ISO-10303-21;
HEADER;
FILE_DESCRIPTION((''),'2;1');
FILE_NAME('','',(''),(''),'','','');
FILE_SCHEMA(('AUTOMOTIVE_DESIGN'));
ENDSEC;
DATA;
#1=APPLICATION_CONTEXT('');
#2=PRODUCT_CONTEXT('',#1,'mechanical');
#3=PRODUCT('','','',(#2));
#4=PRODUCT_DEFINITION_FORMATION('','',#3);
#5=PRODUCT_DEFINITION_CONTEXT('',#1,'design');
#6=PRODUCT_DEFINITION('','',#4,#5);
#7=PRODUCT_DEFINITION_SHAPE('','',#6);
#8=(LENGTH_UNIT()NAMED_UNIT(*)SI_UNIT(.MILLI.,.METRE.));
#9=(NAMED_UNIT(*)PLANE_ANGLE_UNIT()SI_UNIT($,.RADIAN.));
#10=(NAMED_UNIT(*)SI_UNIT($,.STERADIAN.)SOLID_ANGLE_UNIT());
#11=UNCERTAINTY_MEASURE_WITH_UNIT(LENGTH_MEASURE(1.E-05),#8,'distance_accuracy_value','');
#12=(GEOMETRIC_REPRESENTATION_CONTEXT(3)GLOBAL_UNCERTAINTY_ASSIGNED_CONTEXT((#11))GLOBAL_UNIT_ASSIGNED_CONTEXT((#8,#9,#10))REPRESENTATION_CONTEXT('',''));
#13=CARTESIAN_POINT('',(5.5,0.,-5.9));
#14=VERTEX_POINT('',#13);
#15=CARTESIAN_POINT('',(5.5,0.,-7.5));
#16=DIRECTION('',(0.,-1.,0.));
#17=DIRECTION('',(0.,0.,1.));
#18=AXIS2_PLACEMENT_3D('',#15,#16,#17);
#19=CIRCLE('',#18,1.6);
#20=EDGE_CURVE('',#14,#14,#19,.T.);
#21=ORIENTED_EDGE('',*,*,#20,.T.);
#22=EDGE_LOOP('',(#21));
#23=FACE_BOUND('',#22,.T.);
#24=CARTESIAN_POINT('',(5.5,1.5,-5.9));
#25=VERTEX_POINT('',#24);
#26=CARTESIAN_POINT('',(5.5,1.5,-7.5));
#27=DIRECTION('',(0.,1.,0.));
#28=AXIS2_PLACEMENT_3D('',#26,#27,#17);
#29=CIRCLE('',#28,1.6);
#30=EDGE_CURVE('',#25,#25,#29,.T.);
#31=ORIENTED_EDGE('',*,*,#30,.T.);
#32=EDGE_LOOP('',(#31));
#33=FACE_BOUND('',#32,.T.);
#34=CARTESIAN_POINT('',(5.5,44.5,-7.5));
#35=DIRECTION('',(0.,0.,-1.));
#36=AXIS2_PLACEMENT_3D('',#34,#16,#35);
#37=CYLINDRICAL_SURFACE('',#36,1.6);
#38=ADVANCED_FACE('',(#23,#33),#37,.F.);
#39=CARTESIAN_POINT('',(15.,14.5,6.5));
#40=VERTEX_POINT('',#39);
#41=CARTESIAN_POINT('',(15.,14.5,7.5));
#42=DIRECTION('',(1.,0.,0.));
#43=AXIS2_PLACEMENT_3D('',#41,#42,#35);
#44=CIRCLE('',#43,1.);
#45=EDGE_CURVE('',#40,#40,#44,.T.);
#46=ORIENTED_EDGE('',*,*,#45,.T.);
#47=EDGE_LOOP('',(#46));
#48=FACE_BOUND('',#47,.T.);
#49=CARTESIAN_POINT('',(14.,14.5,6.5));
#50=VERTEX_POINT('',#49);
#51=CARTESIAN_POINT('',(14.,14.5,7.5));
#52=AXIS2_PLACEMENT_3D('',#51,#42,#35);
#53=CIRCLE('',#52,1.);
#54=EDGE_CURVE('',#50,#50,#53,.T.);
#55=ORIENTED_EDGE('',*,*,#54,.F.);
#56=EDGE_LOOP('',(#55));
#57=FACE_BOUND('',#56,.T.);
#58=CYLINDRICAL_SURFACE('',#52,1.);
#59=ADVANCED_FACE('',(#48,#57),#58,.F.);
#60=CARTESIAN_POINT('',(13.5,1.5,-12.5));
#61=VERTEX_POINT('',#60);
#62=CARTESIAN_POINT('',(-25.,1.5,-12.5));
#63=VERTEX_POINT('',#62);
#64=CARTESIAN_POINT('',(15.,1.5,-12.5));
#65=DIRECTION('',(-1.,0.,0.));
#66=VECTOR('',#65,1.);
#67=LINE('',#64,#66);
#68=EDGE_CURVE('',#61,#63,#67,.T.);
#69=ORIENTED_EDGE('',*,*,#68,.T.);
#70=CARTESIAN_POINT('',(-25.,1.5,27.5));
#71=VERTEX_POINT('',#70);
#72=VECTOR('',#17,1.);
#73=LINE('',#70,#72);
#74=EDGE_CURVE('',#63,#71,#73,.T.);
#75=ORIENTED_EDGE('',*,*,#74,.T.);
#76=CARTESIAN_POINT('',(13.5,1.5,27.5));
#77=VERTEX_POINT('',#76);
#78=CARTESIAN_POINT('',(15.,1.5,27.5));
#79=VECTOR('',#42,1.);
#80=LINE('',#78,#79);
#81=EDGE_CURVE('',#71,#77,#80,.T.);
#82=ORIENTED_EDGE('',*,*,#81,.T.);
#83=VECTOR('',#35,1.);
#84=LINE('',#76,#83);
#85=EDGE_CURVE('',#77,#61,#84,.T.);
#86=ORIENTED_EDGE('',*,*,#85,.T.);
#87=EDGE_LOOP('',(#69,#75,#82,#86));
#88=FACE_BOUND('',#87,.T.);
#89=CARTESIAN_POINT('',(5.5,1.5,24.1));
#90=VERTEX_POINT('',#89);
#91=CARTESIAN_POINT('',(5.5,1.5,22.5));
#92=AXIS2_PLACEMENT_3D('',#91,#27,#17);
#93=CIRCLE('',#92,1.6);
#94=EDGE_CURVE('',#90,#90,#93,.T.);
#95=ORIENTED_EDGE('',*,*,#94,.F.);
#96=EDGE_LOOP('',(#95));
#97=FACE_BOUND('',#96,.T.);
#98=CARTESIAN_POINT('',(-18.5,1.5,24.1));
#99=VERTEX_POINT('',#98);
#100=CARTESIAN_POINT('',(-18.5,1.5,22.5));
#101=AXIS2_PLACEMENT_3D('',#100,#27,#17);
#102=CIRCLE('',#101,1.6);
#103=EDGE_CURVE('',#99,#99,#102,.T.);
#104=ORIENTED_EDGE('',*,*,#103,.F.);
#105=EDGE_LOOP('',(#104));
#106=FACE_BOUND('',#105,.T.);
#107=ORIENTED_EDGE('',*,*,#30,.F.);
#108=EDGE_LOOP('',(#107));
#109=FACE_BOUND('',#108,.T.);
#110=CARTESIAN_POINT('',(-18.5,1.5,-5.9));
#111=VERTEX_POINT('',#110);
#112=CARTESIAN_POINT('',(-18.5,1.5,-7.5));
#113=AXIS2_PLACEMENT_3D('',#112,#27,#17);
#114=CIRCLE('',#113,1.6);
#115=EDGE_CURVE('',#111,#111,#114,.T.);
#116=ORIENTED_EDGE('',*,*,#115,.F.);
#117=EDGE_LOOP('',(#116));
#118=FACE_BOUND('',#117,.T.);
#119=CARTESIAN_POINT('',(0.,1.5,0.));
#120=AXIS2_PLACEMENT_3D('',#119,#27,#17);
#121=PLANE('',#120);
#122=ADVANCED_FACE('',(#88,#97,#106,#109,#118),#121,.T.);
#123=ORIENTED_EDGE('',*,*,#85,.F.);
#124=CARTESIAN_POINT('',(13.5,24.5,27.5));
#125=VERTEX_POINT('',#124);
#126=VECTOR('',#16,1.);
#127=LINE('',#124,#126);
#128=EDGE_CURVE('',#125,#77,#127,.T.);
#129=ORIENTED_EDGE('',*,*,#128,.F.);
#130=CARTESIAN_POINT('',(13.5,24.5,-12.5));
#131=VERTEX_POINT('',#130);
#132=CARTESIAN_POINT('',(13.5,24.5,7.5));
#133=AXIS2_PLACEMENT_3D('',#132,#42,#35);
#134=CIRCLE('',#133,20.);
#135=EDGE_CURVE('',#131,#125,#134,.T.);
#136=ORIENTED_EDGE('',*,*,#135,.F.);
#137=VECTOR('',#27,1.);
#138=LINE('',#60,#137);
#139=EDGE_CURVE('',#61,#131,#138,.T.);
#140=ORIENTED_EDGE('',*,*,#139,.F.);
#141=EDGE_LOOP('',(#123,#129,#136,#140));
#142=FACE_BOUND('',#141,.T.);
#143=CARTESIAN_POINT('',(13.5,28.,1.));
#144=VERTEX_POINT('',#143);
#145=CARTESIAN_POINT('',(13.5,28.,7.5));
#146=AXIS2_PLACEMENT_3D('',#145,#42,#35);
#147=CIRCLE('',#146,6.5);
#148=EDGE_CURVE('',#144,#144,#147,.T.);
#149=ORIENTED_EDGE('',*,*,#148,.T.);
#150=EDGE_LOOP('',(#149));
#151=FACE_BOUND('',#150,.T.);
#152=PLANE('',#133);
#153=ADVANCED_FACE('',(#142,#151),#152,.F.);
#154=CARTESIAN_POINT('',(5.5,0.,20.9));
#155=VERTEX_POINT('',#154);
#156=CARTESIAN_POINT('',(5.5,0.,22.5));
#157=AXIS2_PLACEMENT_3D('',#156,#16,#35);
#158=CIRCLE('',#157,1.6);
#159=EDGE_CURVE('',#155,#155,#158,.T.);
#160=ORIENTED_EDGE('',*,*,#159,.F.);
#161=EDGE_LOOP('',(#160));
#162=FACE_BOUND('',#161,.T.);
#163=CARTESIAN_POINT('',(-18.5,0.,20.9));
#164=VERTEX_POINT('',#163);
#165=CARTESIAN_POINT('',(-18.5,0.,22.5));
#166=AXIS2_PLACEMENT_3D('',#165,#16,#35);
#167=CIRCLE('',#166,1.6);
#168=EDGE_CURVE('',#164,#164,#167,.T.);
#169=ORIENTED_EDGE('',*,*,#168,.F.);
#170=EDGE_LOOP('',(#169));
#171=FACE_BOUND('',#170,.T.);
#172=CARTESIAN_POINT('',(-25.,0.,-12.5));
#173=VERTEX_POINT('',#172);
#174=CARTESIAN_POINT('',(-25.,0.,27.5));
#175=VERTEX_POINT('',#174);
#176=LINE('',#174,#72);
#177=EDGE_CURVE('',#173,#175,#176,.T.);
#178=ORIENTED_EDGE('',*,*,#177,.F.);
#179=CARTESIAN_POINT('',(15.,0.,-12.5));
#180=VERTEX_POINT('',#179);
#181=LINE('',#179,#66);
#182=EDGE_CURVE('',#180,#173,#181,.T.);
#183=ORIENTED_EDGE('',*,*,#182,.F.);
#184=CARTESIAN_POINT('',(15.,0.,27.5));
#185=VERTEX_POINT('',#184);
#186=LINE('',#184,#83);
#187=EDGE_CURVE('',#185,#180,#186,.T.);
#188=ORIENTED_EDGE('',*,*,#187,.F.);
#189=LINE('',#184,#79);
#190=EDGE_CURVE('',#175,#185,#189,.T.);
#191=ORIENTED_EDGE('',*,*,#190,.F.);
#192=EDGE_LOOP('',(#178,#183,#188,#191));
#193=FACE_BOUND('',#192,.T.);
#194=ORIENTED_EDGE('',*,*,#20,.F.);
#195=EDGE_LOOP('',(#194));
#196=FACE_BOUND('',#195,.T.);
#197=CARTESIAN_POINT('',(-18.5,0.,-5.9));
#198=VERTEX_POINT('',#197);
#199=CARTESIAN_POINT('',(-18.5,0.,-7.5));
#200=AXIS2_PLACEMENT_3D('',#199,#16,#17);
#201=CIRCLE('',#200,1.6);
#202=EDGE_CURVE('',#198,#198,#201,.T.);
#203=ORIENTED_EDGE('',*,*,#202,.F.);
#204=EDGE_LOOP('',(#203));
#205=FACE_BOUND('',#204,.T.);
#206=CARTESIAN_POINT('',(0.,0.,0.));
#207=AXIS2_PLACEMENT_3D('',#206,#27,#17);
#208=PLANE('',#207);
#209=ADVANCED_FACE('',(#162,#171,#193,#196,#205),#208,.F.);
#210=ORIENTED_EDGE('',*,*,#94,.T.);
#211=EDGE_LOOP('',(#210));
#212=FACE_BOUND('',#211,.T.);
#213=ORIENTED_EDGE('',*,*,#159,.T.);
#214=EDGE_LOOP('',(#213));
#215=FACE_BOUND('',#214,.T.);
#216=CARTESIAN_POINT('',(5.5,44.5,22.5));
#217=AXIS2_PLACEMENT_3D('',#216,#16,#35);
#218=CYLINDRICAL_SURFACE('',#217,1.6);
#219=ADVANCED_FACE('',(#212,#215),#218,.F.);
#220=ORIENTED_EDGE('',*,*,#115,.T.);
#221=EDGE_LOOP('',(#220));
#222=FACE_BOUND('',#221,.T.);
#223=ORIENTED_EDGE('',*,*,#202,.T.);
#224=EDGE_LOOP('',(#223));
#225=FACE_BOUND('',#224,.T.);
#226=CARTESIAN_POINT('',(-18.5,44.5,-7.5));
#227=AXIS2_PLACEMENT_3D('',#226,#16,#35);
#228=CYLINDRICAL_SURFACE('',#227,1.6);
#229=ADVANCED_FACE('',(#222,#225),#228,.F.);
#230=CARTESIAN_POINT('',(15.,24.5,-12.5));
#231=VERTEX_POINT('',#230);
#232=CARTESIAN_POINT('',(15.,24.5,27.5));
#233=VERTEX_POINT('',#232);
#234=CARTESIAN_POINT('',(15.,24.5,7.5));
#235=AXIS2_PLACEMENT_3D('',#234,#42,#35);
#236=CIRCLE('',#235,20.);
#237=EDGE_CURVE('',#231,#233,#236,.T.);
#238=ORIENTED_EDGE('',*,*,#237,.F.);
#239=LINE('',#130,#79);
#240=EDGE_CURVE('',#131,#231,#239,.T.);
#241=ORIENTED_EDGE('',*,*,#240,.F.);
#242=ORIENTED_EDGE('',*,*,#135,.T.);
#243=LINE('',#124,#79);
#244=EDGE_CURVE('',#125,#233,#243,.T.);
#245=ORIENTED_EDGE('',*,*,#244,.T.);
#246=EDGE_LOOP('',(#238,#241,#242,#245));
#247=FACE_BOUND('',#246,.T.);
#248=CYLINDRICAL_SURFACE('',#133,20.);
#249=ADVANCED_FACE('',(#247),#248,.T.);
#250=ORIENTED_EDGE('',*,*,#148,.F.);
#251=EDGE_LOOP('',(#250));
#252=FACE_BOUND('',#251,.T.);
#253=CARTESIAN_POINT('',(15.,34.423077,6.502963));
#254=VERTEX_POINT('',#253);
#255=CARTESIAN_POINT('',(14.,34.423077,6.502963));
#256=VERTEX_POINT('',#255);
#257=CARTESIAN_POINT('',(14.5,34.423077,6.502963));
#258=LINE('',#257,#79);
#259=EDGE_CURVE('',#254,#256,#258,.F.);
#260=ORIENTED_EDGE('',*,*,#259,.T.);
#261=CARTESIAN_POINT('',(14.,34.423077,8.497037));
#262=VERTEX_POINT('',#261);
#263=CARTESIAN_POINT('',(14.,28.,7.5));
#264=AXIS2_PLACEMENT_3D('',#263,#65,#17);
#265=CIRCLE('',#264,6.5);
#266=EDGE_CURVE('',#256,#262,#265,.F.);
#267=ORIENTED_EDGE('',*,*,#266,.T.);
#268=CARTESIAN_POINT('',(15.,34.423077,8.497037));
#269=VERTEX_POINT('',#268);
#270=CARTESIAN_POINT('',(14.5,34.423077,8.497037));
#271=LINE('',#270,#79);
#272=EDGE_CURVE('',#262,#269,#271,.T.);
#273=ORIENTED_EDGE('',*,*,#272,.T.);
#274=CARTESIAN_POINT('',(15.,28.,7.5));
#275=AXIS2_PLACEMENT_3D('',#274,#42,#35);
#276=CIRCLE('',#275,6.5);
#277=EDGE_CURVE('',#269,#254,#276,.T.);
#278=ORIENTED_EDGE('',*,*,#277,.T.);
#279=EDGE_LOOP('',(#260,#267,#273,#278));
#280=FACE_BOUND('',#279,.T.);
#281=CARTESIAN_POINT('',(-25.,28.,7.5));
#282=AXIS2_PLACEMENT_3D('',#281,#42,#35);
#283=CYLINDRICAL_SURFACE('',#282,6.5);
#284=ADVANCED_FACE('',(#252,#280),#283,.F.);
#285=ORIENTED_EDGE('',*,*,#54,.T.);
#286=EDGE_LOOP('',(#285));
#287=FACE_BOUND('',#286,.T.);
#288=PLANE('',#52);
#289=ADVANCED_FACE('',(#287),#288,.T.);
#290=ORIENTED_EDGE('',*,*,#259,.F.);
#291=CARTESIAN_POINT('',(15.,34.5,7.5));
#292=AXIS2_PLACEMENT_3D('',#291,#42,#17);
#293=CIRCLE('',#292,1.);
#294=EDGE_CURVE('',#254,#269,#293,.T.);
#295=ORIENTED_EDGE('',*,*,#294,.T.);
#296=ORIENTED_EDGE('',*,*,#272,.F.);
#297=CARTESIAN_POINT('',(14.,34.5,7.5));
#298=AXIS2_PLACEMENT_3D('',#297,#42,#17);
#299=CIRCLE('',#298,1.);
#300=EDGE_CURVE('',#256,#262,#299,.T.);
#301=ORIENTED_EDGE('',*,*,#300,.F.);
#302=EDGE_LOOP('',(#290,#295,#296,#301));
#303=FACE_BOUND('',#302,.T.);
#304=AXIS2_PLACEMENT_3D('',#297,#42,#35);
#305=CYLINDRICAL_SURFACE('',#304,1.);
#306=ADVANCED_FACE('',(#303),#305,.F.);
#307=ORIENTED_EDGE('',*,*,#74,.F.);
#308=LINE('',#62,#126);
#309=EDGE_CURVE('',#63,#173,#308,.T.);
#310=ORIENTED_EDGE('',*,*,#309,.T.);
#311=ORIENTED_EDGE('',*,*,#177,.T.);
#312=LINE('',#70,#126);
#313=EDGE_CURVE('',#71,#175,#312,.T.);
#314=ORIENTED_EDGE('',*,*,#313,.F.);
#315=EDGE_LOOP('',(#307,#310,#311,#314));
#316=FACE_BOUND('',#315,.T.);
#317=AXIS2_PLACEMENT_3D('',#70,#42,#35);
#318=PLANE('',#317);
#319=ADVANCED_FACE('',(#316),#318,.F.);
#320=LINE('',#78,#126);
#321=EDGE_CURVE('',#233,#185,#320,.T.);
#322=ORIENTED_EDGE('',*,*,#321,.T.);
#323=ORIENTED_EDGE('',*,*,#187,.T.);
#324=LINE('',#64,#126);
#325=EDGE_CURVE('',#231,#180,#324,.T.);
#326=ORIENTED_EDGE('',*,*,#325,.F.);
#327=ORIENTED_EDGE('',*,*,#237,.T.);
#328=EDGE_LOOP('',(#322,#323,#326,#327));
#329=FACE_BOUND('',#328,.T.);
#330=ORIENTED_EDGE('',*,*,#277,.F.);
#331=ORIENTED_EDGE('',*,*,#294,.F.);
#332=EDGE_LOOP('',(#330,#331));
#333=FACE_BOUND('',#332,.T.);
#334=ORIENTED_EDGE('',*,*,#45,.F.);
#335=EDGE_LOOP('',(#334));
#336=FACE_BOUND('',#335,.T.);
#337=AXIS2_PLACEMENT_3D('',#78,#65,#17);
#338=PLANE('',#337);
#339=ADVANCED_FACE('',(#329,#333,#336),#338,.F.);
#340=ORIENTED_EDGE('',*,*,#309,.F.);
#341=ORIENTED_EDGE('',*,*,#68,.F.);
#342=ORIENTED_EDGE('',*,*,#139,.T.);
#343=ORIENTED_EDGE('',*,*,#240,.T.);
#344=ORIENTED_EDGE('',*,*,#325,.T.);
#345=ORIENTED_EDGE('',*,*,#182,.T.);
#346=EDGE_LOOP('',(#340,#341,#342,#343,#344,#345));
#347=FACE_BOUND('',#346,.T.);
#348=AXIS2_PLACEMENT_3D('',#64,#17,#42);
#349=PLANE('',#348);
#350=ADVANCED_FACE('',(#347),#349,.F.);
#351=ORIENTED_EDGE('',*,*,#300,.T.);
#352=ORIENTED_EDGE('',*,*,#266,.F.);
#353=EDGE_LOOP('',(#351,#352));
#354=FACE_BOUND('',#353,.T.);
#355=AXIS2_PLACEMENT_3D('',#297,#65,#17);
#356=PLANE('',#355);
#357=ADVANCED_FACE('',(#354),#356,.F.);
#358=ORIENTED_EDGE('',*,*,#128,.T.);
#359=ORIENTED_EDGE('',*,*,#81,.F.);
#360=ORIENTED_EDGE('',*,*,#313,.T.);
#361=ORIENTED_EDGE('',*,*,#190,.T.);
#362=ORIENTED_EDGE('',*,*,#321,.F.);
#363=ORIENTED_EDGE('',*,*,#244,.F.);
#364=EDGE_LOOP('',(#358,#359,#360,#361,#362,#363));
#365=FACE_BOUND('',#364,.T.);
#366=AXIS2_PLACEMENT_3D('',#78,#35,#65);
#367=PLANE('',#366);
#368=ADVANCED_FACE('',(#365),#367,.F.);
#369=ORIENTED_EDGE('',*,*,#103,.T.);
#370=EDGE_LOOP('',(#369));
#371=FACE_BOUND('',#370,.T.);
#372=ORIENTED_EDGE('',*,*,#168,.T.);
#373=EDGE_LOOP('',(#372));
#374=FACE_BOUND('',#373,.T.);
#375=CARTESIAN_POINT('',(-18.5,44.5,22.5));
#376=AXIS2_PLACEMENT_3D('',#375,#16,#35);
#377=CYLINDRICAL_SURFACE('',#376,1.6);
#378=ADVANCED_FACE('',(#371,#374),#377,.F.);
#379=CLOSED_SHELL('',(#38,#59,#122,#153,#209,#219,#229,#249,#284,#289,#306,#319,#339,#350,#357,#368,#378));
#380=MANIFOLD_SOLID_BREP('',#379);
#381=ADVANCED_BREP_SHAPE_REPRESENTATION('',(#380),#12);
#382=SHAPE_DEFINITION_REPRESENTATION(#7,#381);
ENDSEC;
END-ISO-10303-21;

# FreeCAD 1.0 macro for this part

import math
import FreeCAD as App
import Part
import Sketcher
from FreeCAD import Vector

doc = App.newDocument("Part")
body = doc.addObject("PartDesign::Body", "Body")

sketch1 = body.newObject("Sketcher::SketchObject", "Sketch")
sketch1.AttachmentSupport = (doc.getObject("XZ_Plane"), [""])
sketch1.MapMode = "FlatFace"
sketch1.addGeometry([
    Part.LineSegment(Vector(-25, -12.5, 0), Vector(-25, 27.5, 0)),
    Part.LineSegment(Vector(-25, 27.5, 0), Vector(15, 27.5, 0)),
    Part.LineSegment(Vector(15, 27.5, 0), Vector(15, -12.5, 0)),
    Part.LineSegment(Vector(15, -12.5, 0), Vector(-25, -12.5, 0)),
], False)
sketch1.addConstraint([
    Sketcher.Constraint("Coincident", 0, 2, 1, 1),
    Sketcher.Constraint("Coincident", 1, 2, 2, 1),
    Sketcher.Constraint("Coincident", 2, 2, 3, 1),
    Sketcher.Constraint("Coincident", 3, 2, 0, 1),
    Sketcher.Constraint("Vertical", 0),
    Sketcher.Constraint("Horizontal", 1),
    Sketcher.Constraint("Vertical", 2),
    Sketcher.Constraint("Horizontal", 3),
    Sketcher.Constraint("Equal", 3, 0),
    Sketcher.Constraint("DistanceX", 1, 1, 1, 2, 40.0),
    Sketcher.Constraint("DistanceX", 0, 2, -1, 1, 25.0),
    Sketcher.Constraint("DistanceY", -1, 1, 0, 2, 27.5),
])
pad1 = body.newObject("PartDesign::Pad", "Pad")
pad1.Profile = sketch1
pad1.Length = 1.5
pad1.Reversed = True

sketch2 = body.newObject("Sketcher::SketchObject", "Sketch001")
sketch2.AttachmentSupport = (doc.getObject("YZ_Plane"), [""])
sketch2.MapMode = "FlatFace"
sketch2.AttachmentOffset = App.Placement(Vector(0, 0, 15), App.Rotation())
sketch2.addGeometry([
    Part.LineSegment(Vector(1.5, 27.5, 0), Vector(1.5, -12.5, 0)),
    Part.LineSegment(Vector(1.5, -12.5, 0), Vector(24.5, -12.5, 0)),
    Part.ArcOfCircle(Part.Circle(Vector(24.5, 7.5, 0), Vector(0, 0, 1), 20), math.radians(-90), math.radians(90)),
    Part.LineSegment(Vector(24.5, 27.5, 0), Vector(1.5, 27.5, 0)),
], False)
sketch2.addConstraint([
    Sketcher.Constraint("Coincident", 0, 2, 1, 1),
    Sketcher.Constraint("Tangent", 1, 2, 2, 1),
    Sketcher.Constraint("Tangent", 2, 2, 3, 1),
    Sketcher.Constraint("Coincident", 3, 2, 0, 1),
    Sketcher.Constraint("Vertical", 0),
    Sketcher.Constraint("Horizontal", 1),
    Sketcher.Constraint("Horizontal", 3),
    Sketcher.Constraint("Radius", 2, 20.0),
    Sketcher.Constraint("DistanceX", 1, 1, 1, 2, 23.0),
    Sketcher.Constraint("DistanceX", -1, 1, 2, 3, 24.5),
    Sketcher.Constraint("DistanceY", -1, 1, 2, 3, 7.5),
])
pad2 = body.newObject("PartDesign::Pad", "Pad001")
pad2.Profile = sketch2
pad2.Length = 1.5
pad2.Reversed = True

sketch3 = body.newObject("Sketcher::SketchObject", "Sketch002")
sketch3.AttachmentSupport = (doc.getObject("XZ_Plane"), [""])
sketch3.MapMode = "FlatFace"
sketch3.addGeometry([
    Part.Circle(Vector(-18.5, 22.5, 0), Vector(0, 0, 1), 1.6),
    Part.Circle(Vector(-18.5, -7.5, 0), Vector(0, 0, 1), 1.6),
    Part.Circle(Vector(5.5, 22.5, 0), Vector(0, 0, 1), 1.6),
    Part.Circle(Vector(5.5, -7.5, 0), Vector(0, 0, 1), 1.6),
], False)
sketch3.addConstraint([
    Sketcher.Constraint("Equal", 0, 1),
    Sketcher.Constraint("Equal", 1, 2),
    Sketcher.Constraint("Equal", 2, 3),
    Sketcher.Constraint("Horizontal", 0, 3, 2, 3),
    Sketcher.Constraint("Horizontal", 1, 3, 3, 3),
    Sketcher.Constraint("Vertical", 0, 3, 1, 3),
    Sketcher.Constraint("Vertical", 2, 3, 3, 3),
    Sketcher.Constraint("Diameter", 0, 3.2),
    Sketcher.Constraint("DistanceY", 1, 3, 0, 3, 30.0),
    Sketcher.Constraint("DistanceX", 0, 3, 2, 3, 24.0),
    Sketcher.Constraint("DistanceX", 0, 3, -1, 1, 18.5),
    Sketcher.Constraint("DistanceY", -1, 1, 0, 3, 22.5),
])
pocket1 = body.newObject("PartDesign::Pocket", "Pocket")
pocket1.Profile = sketch3
pocket1.Type = "ThroughAll"

sketch4 = body.newObject("Sketcher::SketchObject", "Sketch003")
sketch4.AttachmentSupport = (doc.getObject("YZ_Plane"), [""])
sketch4.MapMode = "FlatFace"
sketch4.AttachmentOffset = App.Placement(Vector(0, 0, 15), App.Rotation())
sketch4.addGeometry(Part.Circle(Vector(28, 7.5, 0), Vector(0, 0, 1), 6.5), False)
sketch4.addConstraint([
    Sketcher.Constraint("Diameter", 0, 13.0),
    Sketcher.Constraint("DistanceX", -1, 1, 0, 3, 28.0),
    Sketcher.Constraint("DistanceY", -1, 1, 0, 3, 7.5),
])
pocket2 = body.newObject("PartDesign::Pocket", "Pocket001")
pocket2.Profile = sketch4
pocket2.Type = "ThroughAll"

sketch5 = body.newObject("Sketcher::SketchObject", "Sketch004")
sketch5.AttachmentSupport = (doc.getObject("YZ_Plane"), [""])
sketch5.MapMode = "FlatFace"
sketch5.AttachmentOffset = App.Placement(Vector(0, 0, 15), App.Rotation())
sketch5.addGeometry([
    Part.Circle(Vector(14.5, 7.5, 0), Vector(0, 0, 1), 1),
    Part.Circle(Vector(34.5, 7.5, 0), Vector(0, 0, 1), 1),
], False)
sketch5.addConstraint([
    Sketcher.Constraint("Equal", 0, 1),
    Sketcher.Constraint("Horizontal", 0, 3, 1, 3),
    Sketcher.Constraint("Diameter", 0, 2.0),
    Sketcher.Constraint("DistanceX", 0, 3, 1, 3, 20.0),
    Sketcher.Constraint("DistanceX", -1, 1, 0, 3, 14.5),
    Sketcher.Constraint("DistanceY", -1, 1, 0, 3, 7.5),
])
pocket3 = body.newObject("PartDesign::Pocket", "Pocket002")
pocket3.Profile = sketch5
pocket3.Length = 1

doc.recompute()
